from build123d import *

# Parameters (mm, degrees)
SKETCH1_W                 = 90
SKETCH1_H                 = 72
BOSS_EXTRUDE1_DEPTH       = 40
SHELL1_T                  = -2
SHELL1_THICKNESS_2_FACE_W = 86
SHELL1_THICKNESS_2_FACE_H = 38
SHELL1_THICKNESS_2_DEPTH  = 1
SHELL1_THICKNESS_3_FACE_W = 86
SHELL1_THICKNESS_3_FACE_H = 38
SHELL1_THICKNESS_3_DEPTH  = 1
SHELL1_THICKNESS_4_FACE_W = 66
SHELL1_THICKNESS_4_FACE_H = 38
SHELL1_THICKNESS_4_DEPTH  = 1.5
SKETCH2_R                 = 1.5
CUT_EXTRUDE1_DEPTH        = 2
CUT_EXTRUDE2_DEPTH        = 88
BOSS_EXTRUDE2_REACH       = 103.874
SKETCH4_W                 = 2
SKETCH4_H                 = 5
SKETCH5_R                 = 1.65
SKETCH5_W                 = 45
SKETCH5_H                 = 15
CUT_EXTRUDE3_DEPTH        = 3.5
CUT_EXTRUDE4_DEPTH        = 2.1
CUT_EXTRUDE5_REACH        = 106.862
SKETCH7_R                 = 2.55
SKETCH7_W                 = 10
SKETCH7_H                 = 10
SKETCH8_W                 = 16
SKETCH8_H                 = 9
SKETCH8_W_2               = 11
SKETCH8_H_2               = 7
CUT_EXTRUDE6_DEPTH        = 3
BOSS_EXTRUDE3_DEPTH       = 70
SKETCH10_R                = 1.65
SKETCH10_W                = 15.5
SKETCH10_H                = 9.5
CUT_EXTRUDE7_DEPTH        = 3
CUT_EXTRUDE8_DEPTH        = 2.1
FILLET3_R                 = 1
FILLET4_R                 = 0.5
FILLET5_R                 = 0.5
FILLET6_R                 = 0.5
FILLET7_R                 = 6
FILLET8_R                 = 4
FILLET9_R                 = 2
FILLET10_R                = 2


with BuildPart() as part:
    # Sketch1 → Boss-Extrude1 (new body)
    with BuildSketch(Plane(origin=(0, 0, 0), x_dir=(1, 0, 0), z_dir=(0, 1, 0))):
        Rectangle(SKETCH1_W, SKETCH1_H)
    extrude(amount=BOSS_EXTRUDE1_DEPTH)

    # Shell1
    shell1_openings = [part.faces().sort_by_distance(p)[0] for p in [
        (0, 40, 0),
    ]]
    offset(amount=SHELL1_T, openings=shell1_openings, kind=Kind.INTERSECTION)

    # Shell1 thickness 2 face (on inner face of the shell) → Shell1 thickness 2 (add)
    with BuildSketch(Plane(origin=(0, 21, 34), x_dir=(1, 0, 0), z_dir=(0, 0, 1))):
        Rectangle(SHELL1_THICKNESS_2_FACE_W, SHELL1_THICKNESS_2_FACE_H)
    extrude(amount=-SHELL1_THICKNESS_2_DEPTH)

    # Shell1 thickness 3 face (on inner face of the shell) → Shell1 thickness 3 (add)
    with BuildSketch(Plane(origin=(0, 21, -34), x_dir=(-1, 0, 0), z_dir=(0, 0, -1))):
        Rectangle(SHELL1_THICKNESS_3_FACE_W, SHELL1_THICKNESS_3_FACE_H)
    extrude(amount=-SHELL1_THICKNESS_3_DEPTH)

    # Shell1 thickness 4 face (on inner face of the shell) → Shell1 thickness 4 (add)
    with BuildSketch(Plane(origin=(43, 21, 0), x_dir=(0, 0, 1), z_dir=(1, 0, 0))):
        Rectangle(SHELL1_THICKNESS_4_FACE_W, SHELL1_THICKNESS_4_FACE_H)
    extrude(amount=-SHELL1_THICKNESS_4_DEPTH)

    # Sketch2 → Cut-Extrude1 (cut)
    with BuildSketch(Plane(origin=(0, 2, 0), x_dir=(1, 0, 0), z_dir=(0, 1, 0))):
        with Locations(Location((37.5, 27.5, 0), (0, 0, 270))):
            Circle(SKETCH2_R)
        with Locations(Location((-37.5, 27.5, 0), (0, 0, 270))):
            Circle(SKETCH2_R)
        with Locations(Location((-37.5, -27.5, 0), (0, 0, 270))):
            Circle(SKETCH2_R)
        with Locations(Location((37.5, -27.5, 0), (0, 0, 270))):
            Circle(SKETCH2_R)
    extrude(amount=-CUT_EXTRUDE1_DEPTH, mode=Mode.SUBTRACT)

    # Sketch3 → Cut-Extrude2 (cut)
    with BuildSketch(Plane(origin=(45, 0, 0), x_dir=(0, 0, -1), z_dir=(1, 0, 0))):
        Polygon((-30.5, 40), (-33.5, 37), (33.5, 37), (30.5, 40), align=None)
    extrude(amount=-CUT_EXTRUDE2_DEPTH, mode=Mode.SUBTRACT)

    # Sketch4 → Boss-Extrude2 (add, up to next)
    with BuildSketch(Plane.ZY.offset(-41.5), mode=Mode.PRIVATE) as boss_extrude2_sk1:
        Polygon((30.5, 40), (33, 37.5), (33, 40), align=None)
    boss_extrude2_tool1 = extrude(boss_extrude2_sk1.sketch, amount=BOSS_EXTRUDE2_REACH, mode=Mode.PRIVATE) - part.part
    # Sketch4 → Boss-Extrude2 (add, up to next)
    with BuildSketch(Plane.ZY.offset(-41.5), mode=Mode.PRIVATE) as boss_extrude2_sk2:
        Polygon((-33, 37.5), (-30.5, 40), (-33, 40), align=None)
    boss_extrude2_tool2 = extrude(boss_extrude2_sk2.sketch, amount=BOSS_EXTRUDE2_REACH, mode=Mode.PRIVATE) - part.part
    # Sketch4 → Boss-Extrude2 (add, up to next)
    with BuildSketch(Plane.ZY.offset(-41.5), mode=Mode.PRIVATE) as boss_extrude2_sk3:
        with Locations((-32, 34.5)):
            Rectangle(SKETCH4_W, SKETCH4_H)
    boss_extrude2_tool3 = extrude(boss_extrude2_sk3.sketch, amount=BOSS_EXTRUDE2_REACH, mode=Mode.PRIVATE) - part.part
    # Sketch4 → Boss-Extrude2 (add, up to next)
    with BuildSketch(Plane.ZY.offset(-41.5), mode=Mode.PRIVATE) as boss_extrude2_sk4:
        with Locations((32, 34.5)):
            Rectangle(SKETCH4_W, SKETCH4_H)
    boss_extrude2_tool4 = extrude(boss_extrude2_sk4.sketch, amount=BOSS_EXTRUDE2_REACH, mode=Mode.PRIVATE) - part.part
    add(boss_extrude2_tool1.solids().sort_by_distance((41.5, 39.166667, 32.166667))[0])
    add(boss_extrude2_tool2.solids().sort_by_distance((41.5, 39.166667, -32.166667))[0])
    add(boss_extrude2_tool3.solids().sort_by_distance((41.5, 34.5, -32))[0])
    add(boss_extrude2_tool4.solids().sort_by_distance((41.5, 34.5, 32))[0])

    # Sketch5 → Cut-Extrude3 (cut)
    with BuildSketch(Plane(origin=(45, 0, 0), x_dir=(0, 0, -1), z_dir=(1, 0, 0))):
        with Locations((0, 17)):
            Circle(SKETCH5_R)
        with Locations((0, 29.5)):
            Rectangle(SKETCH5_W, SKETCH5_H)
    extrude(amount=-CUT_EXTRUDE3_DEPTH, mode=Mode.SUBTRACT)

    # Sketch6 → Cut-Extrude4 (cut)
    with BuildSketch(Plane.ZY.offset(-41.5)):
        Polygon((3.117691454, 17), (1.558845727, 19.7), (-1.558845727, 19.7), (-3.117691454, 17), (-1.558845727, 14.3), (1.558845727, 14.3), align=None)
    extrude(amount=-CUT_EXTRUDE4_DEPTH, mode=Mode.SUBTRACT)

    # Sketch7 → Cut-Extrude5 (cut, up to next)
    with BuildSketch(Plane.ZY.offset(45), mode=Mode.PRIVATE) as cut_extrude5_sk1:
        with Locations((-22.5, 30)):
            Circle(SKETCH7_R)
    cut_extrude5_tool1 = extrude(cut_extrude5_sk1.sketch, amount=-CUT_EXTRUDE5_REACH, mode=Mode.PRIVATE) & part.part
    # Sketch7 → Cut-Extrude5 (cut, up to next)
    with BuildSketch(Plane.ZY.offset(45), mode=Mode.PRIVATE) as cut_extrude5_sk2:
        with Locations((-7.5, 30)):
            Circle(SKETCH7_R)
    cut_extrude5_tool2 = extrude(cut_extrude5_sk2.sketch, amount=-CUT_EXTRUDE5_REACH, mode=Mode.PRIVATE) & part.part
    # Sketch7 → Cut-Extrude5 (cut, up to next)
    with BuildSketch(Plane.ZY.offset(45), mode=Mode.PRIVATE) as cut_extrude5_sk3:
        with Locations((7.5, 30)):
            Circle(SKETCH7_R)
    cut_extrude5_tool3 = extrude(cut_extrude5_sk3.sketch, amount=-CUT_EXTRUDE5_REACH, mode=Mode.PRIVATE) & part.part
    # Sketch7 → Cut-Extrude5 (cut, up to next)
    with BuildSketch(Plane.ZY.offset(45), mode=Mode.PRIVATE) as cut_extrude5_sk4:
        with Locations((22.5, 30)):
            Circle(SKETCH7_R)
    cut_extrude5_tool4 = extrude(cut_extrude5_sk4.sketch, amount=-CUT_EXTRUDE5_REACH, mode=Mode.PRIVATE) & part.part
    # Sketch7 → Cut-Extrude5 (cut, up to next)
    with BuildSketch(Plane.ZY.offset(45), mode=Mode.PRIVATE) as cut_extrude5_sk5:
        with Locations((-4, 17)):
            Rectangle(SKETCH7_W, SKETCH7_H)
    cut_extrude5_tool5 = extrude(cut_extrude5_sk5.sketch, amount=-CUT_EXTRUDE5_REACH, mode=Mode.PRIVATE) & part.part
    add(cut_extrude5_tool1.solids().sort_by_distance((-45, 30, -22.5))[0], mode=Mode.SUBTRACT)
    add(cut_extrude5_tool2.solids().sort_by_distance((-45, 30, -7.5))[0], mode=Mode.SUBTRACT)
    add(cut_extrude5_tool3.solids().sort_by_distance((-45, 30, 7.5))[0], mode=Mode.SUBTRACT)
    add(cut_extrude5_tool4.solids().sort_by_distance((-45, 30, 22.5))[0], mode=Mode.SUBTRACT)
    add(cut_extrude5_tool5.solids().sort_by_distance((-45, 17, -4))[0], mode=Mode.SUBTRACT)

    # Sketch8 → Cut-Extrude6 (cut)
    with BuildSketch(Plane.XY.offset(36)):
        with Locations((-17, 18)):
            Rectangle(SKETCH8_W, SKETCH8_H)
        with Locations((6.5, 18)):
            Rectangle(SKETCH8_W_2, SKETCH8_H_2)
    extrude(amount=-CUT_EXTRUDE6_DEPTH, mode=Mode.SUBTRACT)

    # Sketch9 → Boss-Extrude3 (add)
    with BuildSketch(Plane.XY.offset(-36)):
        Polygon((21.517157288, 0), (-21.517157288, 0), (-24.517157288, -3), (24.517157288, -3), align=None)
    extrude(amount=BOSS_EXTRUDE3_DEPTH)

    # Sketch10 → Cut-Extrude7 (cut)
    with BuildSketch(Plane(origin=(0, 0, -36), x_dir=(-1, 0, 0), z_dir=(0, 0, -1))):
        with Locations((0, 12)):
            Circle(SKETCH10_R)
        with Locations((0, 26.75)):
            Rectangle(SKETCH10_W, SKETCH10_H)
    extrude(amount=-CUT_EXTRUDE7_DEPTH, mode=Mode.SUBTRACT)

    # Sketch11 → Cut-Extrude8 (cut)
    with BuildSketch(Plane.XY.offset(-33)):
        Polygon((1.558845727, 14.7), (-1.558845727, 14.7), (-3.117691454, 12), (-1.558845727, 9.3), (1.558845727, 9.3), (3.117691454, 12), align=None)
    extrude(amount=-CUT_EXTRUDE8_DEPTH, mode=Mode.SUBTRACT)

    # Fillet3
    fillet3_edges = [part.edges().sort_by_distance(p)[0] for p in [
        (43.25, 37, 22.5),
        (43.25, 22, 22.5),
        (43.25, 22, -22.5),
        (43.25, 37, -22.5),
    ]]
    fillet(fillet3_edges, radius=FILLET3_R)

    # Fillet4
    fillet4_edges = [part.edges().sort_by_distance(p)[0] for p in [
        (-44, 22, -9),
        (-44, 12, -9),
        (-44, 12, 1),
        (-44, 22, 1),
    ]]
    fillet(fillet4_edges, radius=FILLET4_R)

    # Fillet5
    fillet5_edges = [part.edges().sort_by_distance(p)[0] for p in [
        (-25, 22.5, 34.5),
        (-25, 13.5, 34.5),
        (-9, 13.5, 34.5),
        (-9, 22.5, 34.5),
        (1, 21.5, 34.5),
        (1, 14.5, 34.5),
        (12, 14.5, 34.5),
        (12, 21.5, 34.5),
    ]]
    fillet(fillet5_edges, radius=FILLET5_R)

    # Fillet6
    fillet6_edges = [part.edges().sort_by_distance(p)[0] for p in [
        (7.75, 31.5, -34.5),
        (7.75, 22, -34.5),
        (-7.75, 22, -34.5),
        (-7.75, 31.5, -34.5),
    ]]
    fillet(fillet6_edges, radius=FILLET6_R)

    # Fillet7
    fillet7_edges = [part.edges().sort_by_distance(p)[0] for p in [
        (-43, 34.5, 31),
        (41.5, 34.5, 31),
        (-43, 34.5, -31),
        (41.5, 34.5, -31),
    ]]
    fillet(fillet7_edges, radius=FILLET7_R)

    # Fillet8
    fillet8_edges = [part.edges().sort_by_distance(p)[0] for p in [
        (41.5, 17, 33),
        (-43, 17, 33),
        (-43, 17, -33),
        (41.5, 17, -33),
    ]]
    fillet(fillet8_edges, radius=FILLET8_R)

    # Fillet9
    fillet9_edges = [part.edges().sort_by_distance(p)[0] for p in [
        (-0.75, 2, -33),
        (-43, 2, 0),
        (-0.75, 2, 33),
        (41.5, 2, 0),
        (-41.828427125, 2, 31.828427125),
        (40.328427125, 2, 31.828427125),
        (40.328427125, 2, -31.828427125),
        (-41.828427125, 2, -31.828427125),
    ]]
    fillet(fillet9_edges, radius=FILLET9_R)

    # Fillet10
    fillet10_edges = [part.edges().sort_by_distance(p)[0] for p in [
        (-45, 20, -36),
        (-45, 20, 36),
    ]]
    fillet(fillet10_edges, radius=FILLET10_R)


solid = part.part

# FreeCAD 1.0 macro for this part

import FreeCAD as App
import Part
import Sketcher

V = App.Vector
Q = App.Units.Quantity


def edges_at(feature, points):
    """Names of the edges that pass closest to the given points."""
    edges = feature.Shape.Edges
    near = lambda p: min(range(len(edges)), key=lambda i: edges[i].distToShape(Part.Vertex(*p))[0])
    return sorted({f"Edge{near(p) + 1}" for p in points})


def faces_at(feature, points):
    """Names of the faces that lie closest to the given points."""
    faces = feature.Shape.Faces
    near = lambda p: min(range(len(faces)), key=lambda i: faces[i].distToShape(Part.Vertex(*p))[0])
    return sorted({f"Face{near(p) + 1}" for p in points})


def add_polygon(sketch, points):
    """Adds a closed chain of lines whose ends are joined by coincident constraints."""
    first, n = sketch.GeometryCount, len(points)
    for a, b in zip(points, points[1:] + points[:1]):
        sketch.addGeometry(Part.LineSegment(App.Vector(*a, 0), App.Vector(*b, 0)), False)
    for i in range(n):
        sketch.addConstraint(Sketcher.Constraint("Coincident", first + i, 2, first + (i + 1) % n, 1))

doc = App.newDocument("Part")
body = doc.addObject("PartDesign::Body", "Body")

# Sketch on XZ plane
sketch1 = body.newObject("Sketcher::SketchObject", "Sketch")
sketch1.AttachmentSupport = (doc.getObject("XZ_Plane"), [""])
sketch1.MapMode = "FlatFace"
add_polygon(sketch1, [(-45, -36), (-45, 36), (45, 36), (45, -36)])  # lines 0-3
sketch1.addConstraint([
    Sketcher.Constraint("Vertical", 0),
    Sketcher.Constraint("Horizontal", 1),
    Sketcher.Constraint("Vertical", 2),
    Sketcher.Constraint("Horizontal", 3),
    Sketcher.Constraint("Symmetric", 0, 2, 2, 2, -1, 1),
    Sketcher.Constraint("DistanceX", 1, 1, 1, 2, 90.0),
    Sketcher.Constraint("DistanceY", 0, 1, 0, 2, 72.0),
])
pad1 = body.newObject("PartDesign::Pad", "Pad")
pad1.Profile = sketch1
pad1.Length = 40
pad1.Reversed = True
doc.recompute()

thickness = body.newObject("PartDesign::Thickness", "Thickness")
thickness.Base = (pad1, faces_at(pad1, [(0, 40, 0)]))
thickness.Value = 2
thickness.Reversed = True
thickness.Join = "Intersection"

# Sketch on XY plane
sketch2 = body.newObject("Sketcher::SketchObject", "Sketch001")
sketch2.AttachmentSupport = (doc.getObject("XY_Plane"), [""])
sketch2.MapMode = "FlatFace"
sketch2.AttachmentOffset = App.Placement(V(0, 0, 34), App.Rotation())
add_polygon(sketch2, [(-43, 40), (-43, 2), (43, 2), (43, 40)])  # lines 0-3
sketch2.addConstraint([
    Sketcher.Constraint("Vertical", 0),
    Sketcher.Constraint("Horizontal", 1),
    Sketcher.Constraint("Vertical", 2),
    Sketcher.Constraint("Horizontal", 3),
    Sketcher.Constraint("DistanceX", 1, 1, 1, 2, 86.0),
    Sketcher.Constraint("DistanceY", 0, 2, 0, 1, 38.0),
    Sketcher.Constraint("DistanceX", 0, 2, -1, 1, 43.0),
    Sketcher.Constraint("DistanceY", -1, 1, 0, 2, 2.0),
])
pad2 = body.newObject("PartDesign::Pad", "Pad001")
pad2.Profile = sketch2
pad2.Length = 1
pad2.Reversed = True

# Sketch on XY plane
sketch3 = body.newObject("Sketcher::SketchObject", "Sketch002")
sketch3.AttachmentSupport = (doc.getObject("XY_Plane"), [""])
sketch3.MapMode = "FlatFace"
sketch3.AttachmentOffset = App.Placement(V(0, 0, -34), App.Rotation())
add_polygon(sketch3, [(43, 40), (43, 2), (-43, 2), (-43, 40)])  # lines 0-3
sketch3.addConstraint([
    Sketcher.Constraint("Vertical", 0),
    Sketcher.Constraint("Horizontal", 1),
    Sketcher.Constraint("Vertical", 2),
    Sketcher.Constraint("Horizontal", 3),
    Sketcher.Constraint("DistanceX", 1, 2, 1, 1, 86.0),
    Sketcher.Constraint("DistanceY", 0, 2, 0, 1, 38.0),
    Sketcher.Constraint("DistanceX", -1, 1, 0, 2, 43.0),
    Sketcher.Constraint("DistanceY", -1, 1, 0, 2, 2.0),
])
pad3 = body.newObject("PartDesign::Pad", "Pad002")
pad3.Profile = sketch3
pad3.Length = 1

# Sketch on YZ plane
sketch4 = body.newObject("Sketcher::SketchObject", "Sketch003")
sketch4.AttachmentSupport = (doc.getObject("YZ_Plane"), [""])
sketch4.MapMode = "FlatFace"
sketch4.AttachmentOffset = App.Placement(V(0, 0, 43), App.Rotation())
add_polygon(sketch4, [(2, -33), (40, -33), (40, 33), (2, 33)])  # lines 0-3
sketch4.addConstraint([
    Sketcher.Constraint("Horizontal", 0),
    Sketcher.Constraint("Vertical", 1),
    Sketcher.Constraint("Horizontal", 2),
    Sketcher.Constraint("Vertical", 3),
    Sketcher.Constraint("DistanceX", 0, 1, 0, 2, 38.0),
    Sketcher.Constraint("DistanceY", 1, 1, 1, 2, 66.0),
    Sketcher.Constraint("DistanceX", -1, 1, 0, 2, 40.0),
    Sketcher.Constraint("DistanceY", 0, 2, -1, 1, 33.0),
])
pad4 = body.newObject("PartDesign::Pad", "Pad003")
pad4.Profile = sketch4
pad4.Length = 1.5
pad4.Reversed = True

# Sketch on XZ plane
sketch5 = body.newObject("Sketcher::SketchObject", "Sketch004")
sketch5.AttachmentSupport = (doc.getObject("XZ_Plane"), [""])
sketch5.MapMode = "FlatFace"
sketch5.AttachmentOffset = App.Placement(V(0, 0, -2), App.Rotation())
sketch5.addGeometry([
    Part.Circle(V(37.5, -27.5, 0), V(0, 0, 1), 1.5),
    Part.Circle(V(-37.5, -27.5, 0), V(0, 0, 1), 1.5),
    Part.Circle(V(-37.5, 27.5, 0), V(0, 0, 1), 1.5),
    Part.Circle(V(37.5, 27.5, 0), V(0, 0, 1), 1.5),
], False)
sketch5.addConstraint([
    Sketcher.Constraint("Equal", 0, 1),
    Sketcher.Constraint("Equal", 1, 2),
    Sketcher.Constraint("Equal", 2, 3),
    Sketcher.Constraint("Symmetric", 0, 3, 2, 3, -1, 1),
    Sketcher.Constraint("Symmetric", 1, 3, 3, 3, -1, 1),
    Sketcher.Constraint("Symmetric", 0, 3, 1, 3, -2),
    Sketcher.Constraint("Diameter", 0, 3.0),
    Sketcher.Constraint("DistanceX", 1, 3, 0, 3, 75.0),
    Sketcher.Constraint("DistanceY", 1, 3, 2, 3, 55.0),
])
pocket1 = body.newObject("PartDesign::Pocket", "Pocket")
pocket1.Profile = sketch5
pocket1.Length = 2
pocket1.Reversed = True

# Sketch on YZ plane
sketch6 = body.newObject("Sketcher::SketchObject", "Sketch005")
sketch6.AttachmentSupport = (doc.getObject("YZ_Plane"), [""])
sketch6.MapMode = "FlatFace"
sketch6.AttachmentOffset = App.Placement(V(0, 0, 45), App.Rotation())
add_polygon(sketch6, [(40, 30.5), (37, 33.5), (37, -33.5), (40, -30.5)])  # lines 0-3
sketch6.addConstraint([
    Sketcher.Constraint("Vertical", 1),
    Sketcher.Constraint("Vertical", 3),
    Sketcher.Constraint("Perpendicular", 0, 2),
    Sketcher.Constraint("Equal", 0, 2),
    Sketcher.Constraint("DistanceY", 1, 2, 1, 1, 67.0),
    Sketcher.Constraint("DistanceY", 3, 1, 3, 2, 61.0),
    Sketcher.Constraint("DistanceX", -1, 1, 0, 2, 37.0),
    Sketcher.Constraint("DistanceY", -1, 1, 0, 2, 33.5),
])
pocket2 = body.newObject("PartDesign::Pocket", "Pocket001")
pocket2.Profile = sketch6
pocket2.Length = 88

# Sketch on YZ plane
sketch7 = body.newObject("Sketcher::SketchObject", "Sketch006")
sketch7.AttachmentSupport = (doc.getObject("YZ_Plane"), [""])
sketch7.MapMode = "FlatFace"
sketch7.AttachmentOffset = App.Placement(V(0, 0, 41.5), App.Rotation())
add_polygon(sketch7, [(40, 30.5), (37.5, 33), (40, 33)])  # lines 0-2
sketch7.addConstraint([
    Sketcher.Constraint("Horizontal", 1),
    Sketcher.Constraint("Vertical", 2),
    Sketcher.Constraint("Equal", 1, 2),
    Sketcher.Constraint("DistanceX", 1, 1, 1, 2, 2.5),
    Sketcher.Constraint("DistanceY", -1, 1, 0, 2, 33.0),
    Sketcher.Constraint("DistanceX", -1, 1, 1, 2, 40.0),
])
pad5 = body.newObject("PartDesign::Pad", "Pad004")
pad5.Profile = sketch7
pad5.Type = "UpToFirst"
pad5.Reversed = True

# Sketch on YZ plane
sketch8 = body.newObject("Sketcher::SketchObject", "Sketch007")
sketch8.AttachmentSupport = (doc.getObject("YZ_Plane"), [""])
sketch8.MapMode = "FlatFace"
sketch8.AttachmentOffset = App.Placement(V(0, 0, 41.5), App.Rotation())
add_polygon(sketch8, [(37.5, -33), (40, -30.5), (40, -33)])  # lines 0-2
sketch8.addConstraint([
    Sketcher.Constraint("Vertical", 1),
    Sketcher.Constraint("Horizontal", 2),
    Sketcher.Constraint("Equal", 2, 1),
    Sketcher.Constraint("DistanceX", 2, 2, 2, 1, 2.5),
    Sketcher.Constraint("DistanceX", -1, 1, 0, 2, 40.0),
    Sketcher.Constraint("DistanceY", 1, 2, -1, 1, 33.0),
])
pad6 = body.newObject("PartDesign::Pad", "Pad005")
pad6.Profile = sketch8
pad6.Type = "UpToFirst"
pad6.Reversed = True

# Sketch on YZ plane
sketch9 = body.newObject("Sketcher::SketchObject", "Sketch008")
sketch9.AttachmentSupport = (doc.getObject("YZ_Plane"), [""])
sketch9.MapMode = "FlatFace"
sketch9.AttachmentOffset = App.Placement(V(0, 0, 41.5), App.Rotation())
add_polygon(sketch9, [(37, -33), (32, -33), (32, -31), (37, -31)])  # lines 0-3
sketch9.addConstraint([
    Sketcher.Constraint("Horizontal", 0),
    Sketcher.Constraint("Vertical", 1),
    Sketcher.Constraint("Horizontal", 2),
    Sketcher.Constraint("Vertical", 3),
    Sketcher.Constraint("DistanceX", 0, 2, 0, 1, 5.0),
    Sketcher.Constraint("DistanceY", 1, 1, 1, 2, 2.0),
    Sketcher.Constraint("DistanceX", -1, 1, 0, 2, 32.0),
    Sketcher.Constraint("DistanceY", 0, 2, -1, 1, 33.0),
])
pad7 = body.newObject("PartDesign::Pad", "Pad006")
pad7.Profile = sketch9
pad7.Type = "UpToFirst"
pad7.Reversed = True

# Sketch on YZ plane
sketch10 = body.newObject("Sketcher::SketchObject", "Sketch009")
sketch10.AttachmentSupport = (doc.getObject("YZ_Plane"), [""])
sketch10.MapMode = "FlatFace"
sketch10.AttachmentOffset = App.Placement(V(0, 0, 41.5), App.Rotation())
add_polygon(sketch10, [(37, 31), (32, 31), (32, 33), (37, 33)])  # lines 0-3
sketch10.addConstraint([
    Sketcher.Constraint("Horizontal", 0),
    Sketcher.Constraint("Vertical", 1),
    Sketcher.Constraint("Horizontal", 2),
    Sketcher.Constraint("Vertical", 3),
    Sketcher.Constraint("DistanceX", 0, 2, 0, 1, 5.0),
    Sketcher.Constraint("DistanceY", 1, 1, 1, 2, 2.0),
    Sketcher.Constraint("DistanceX", -1, 1, 0, 2, 32.0),
    Sketcher.Constraint("DistanceY", -1, 1, 0, 2, 31.0),
])
pad8 = body.newObject("PartDesign::Pad", "Pad007")
pad8.Profile = sketch10
pad8.Type = "UpToFirst"
pad8.Reversed = True

# Sketch on YZ plane
sketch11 = body.newObject("Sketcher::SketchObject", "Sketch010")
sketch11.AttachmentSupport = (doc.getObject("YZ_Plane"), [""])
sketch11.MapMode = "FlatFace"
sketch11.AttachmentOffset = App.Placement(V(0, 0, 45), App.Rotation())
sketch11.addGeometry(Part.Circle(V(17, 0, 0), V(0, 0, 1), 1.65), False)  # 0
add_polygon(sketch11, [(37, 22.5), (22, 22.5), (22, -22.5), (37, -22.5)])  # lines 1-4
sketch11.addConstraint([
    Sketcher.Constraint("Horizontal", 1),
    Sketcher.Constraint("Vertical", 2),
    Sketcher.Constraint("Horizontal", 3),
    Sketcher.Constraint("Vertical", 4),
    Sketcher.Constraint("PointOnObject", 0, 3, -1),
    Sketcher.Constraint("Diameter", 0, 3.3),
    Sketcher.Constraint("DistanceX", 1, 2, 1, 1, 15.0),
    Sketcher.Constraint("DistanceY", 2, 2, 2, 1, 45.0),
    Sketcher.Constraint("DistanceX", -1, 1, 0, 3, 17.0),
    Sketcher.Constraint("DistanceX", -1, 1, 1, 2, 22.0),
    Sketcher.Constraint("DistanceY", -1, 1, 1, 2, 22.5),
])
pocket3 = body.newObject("PartDesign::Pocket", "Pocket002")
pocket3.Profile = sketch11
pocket3.Length = 3.5

# Sketch on YZ plane
sketch12 = body.newObject("Sketcher::SketchObject", "Sketch011")
sketch12.AttachmentSupport = (doc.getObject("YZ_Plane"), [""])
sketch12.MapMode = "FlatFace"
sketch12.AttachmentOffset = App.Placement(V(0, 0, 41.5), App.Rotation())
add_polygon(sketch12, [(17, 3.117691), (19.7, 1.558846), (19.7, -1.558846), (17, -3.117691), (14.3, -1.558846), (14.3, 1.558846)])  # lines 0-5
sketch12.addConstraint([
    Sketcher.Constraint("Vertical", 1),
    Sketcher.Constraint("Vertical", 4),
    Sketcher.Constraint("Symmetric", 2, 2, 5, 2, -1),
    Sketcher.Constraint("Parallel", 0, 3),
    Sketcher.Constraint("Parallel", 2, 5),
    Sketcher.Constraint("Horizontal", 1, 2, 3, 2),
    Sketcher.Constraint("Horizontal", 0, 2, 4, 2),
    Sketcher.Constraint("Angle", 0, Q("-30 deg")),
    Sketcher.Constraint("DistanceX", -1, 1, 2, 2, 17.0),
    Sketcher.Constraint("DistanceX", -1, 1, 0, 2, 19.7),
    Sketcher.Constraint("DistanceY", 1, 2, 1, 1, 3.117691),
])
pocket4 = body.newObject("PartDesign::Pocket", "Pocket003")
pocket4.Profile = sketch12
pocket4.Length = 2.1
pocket4.Reversed = True

# Sketch on YZ plane
sketch13 = body.newObject("Sketcher::SketchObject", "Sketch012")
sketch13.AttachmentSupport = (doc.getObject("YZ_Plane"), [""])
sketch13.MapMode = "FlatFace"
sketch13.AttachmentOffset = App.Placement(V(0, 0, -45), App.Rotation())
sketch13.addGeometry(Part.Circle(V(30, -22.5, 0), V(0, 0, 1), 2.55), False)
sketch13.addConstraint([
    Sketcher.Constraint("Diameter", 0, 5.1),
    Sketcher.Constraint("DistanceX", -1, 1, 0, 3, 30.0),
    Sketcher.Constraint("DistanceY", 0, 3, -1, 1, 22.5),
])
pocket5 = body.newObject("PartDesign::Pocket", "Pocket004")
pocket5.Profile = sketch13
pocket5.Type = "UpToFirst"
pocket5.Reversed = True

# Sketch on YZ plane
sketch14 = body.newObject("Sketcher::SketchObject", "Sketch013")
sketch14.AttachmentSupport = (doc.getObject("YZ_Plane"), [""])
sketch14.MapMode = "FlatFace"
sketch14.AttachmentOffset = App.Placement(V(0, 0, -45), App.Rotation())
sketch14.addGeometry(Part.Circle(V(30, -7.5, 0), V(0, 0, 1), 2.55), False)
sketch14.addConstraint([
    Sketcher.Constraint("Diameter", 0, 5.1),
    Sketcher.Constraint("DistanceX", -1, 1, 0, 3, 30.0),
    Sketcher.Constraint("DistanceY", 0, 3, -1, 1, 7.5),
])
pocket6 = body.newObject("PartDesign::Pocket", "Pocket005")
pocket6.Profile = sketch14
pocket6.Type = "UpToFirst"
pocket6.Reversed = True

# Sketch on YZ plane
sketch15 = body.newObject("Sketcher::SketchObject", "Sketch014")
sketch15.AttachmentSupport = (doc.getObject("YZ_Plane"), [""])
sketch15.MapMode = "FlatFace"
sketch15.AttachmentOffset = App.Placement(V(0, 0, -45), App.Rotation())
sketch15.addGeometry(Part.Circle(V(30, 7.5, 0), V(0, 0, 1), 2.55), False)
sketch15.addConstraint([
    Sketcher.Constraint("Diameter", 0, 5.1),
    Sketcher.Constraint("DistanceX", -1, 1, 0, 3, 30.0),
    Sketcher.Constraint("DistanceY", -1, 1, 0, 3, 7.5),
])
pocket7 = body.newObject("PartDesign::Pocket", "Pocket006")
pocket7.Profile = sketch15
pocket7.Type = "UpToFirst"
pocket7.Reversed = True

# Sketch on YZ plane
sketch16 = body.newObject("Sketcher::SketchObject", "Sketch015")
sketch16.AttachmentSupport = (doc.getObject("YZ_Plane"), [""])
sketch16.MapMode = "FlatFace"
sketch16.AttachmentOffset = App.Placement(V(0, 0, -45), App.Rotation())
sketch16.addGeometry(Part.Circle(V(30, 22.5, 0), V(0, 0, 1), 2.55), False)
sketch16.addConstraint([
    Sketcher.Constraint("Diameter", 0, 5.1),
    Sketcher.Constraint("DistanceX", -1, 1, 0, 3, 30.0),
    Sketcher.Constraint("DistanceY", -1, 1, 0, 3, 22.5),
])
pocket8 = body.newObject("PartDesign::Pocket", "Pocket007")
pocket8.Profile = sketch16
pocket8.Type = "UpToFirst"
pocket8.Reversed = True

# Sketch on YZ plane
sketch17 = body.newObject("Sketcher::SketchObject", "Sketch016")
sketch17.AttachmentSupport = (doc.getObject("YZ_Plane"), [""])
sketch17.MapMode = "FlatFace"
sketch17.AttachmentOffset = App.Placement(V(0, 0, -45), App.Rotation())
add_polygon(sketch17, [(22, -9), (12, -9), (12, 1), (22, 1)])  # lines 0-3
sketch17.addConstraint([
    Sketcher.Constraint("Horizontal", 0),
    Sketcher.Constraint("Vertical", 1),
    Sketcher.Constraint("Horizontal", 2),
    Sketcher.Constraint("Vertical", 3),
    Sketcher.Constraint("Equal", 2, 1),
    Sketcher.Constraint("DistanceX", 0, 2, 0, 1, 10.0),
    Sketcher.Constraint("DistanceX", -1, 1, 0, 2, 12.0),
    Sketcher.Constraint("DistanceY", 0, 2, -1, 1, 9.0),
])
pocket9 = body.newObject("PartDesign::Pocket", "Pocket008")
pocket9.Profile = sketch17
pocket9.Type = "UpToFirst"
pocket9.Reversed = True

# Sketch on XY plane
sketch18 = body.newObject("Sketcher::SketchObject", "Sketch017")
sketch18.AttachmentSupport = (doc.getObject("XY_Plane"), [""])
sketch18.MapMode = "FlatFace"
sketch18.AttachmentOffset = App.Placement(V(0, 0, 36), App.Rotation())
add_polygon(sketch18, [(-25, 22.5), (-25, 13.5), (-9, 13.5), (-9, 22.5)])  # lines 0-3
add_polygon(sketch18, [(1, 21.5), (1, 14.5), (12, 14.5), (12, 21.5)])  # lines 4-7
sketch18.addConstraint([
    Sketcher.Constraint("Vertical", 0),
    Sketcher.Constraint("Horizontal", 1),
    Sketcher.Constraint("Vertical", 2),
    Sketcher.Constraint("Horizontal", 3),
    Sketcher.Constraint("Vertical", 4),
    Sketcher.Constraint("Horizontal", 5),
    Sketcher.Constraint("Vertical", 6),
    Sketcher.Constraint("Horizontal", 7),
    Sketcher.Constraint("DistanceX", 1, 1, 1, 2, 16.0),
    Sketcher.Constraint("DistanceX", 5, 1, 5, 2, 11.0),
    Sketcher.Constraint("DistanceY", 0, 2, 0, 1, 9.0),
    Sketcher.Constraint("DistanceY", 4, 2, 4, 1, 7.0),
    Sketcher.Constraint("DistanceX", 0, 2, -1, 1, 25.0),
    Sketcher.Constraint("DistanceX", -1, 1, 4, 2, 1.0),
    Sketcher.Constraint("DistanceY", 1, 2, 4, 2, 1.0),
    Sketcher.Constraint("DistanceY", -1, 1, 0, 2, 13.5),
])
pocket10 = body.newObject("PartDesign::Pocket", "Pocket009")
pocket10.Profile = sketch18
pocket10.Length = 3

# Sketch on XY plane
sketch19 = body.newObject("Sketcher::SketchObject", "Sketch018")
sketch19.AttachmentSupport = (doc.getObject("XY_Plane"), [""])
sketch19.MapMode = "FlatFace"
sketch19.AttachmentOffset = App.Placement(V(0, 0, -36), App.Rotation())
add_polygon(sketch19, [(21.517157, 0), (-21.517157, 0), (-24.517157, -3), (24.517157, -3)])  # lines 0-3
sketch19.addConstraint([
    Sketcher.Constraint("Horizontal", 0),
    Sketcher.Constraint("Horizontal", 2),
    Sketcher.Constraint("Symmetric", 0, 2, 3, 2, -1, 1),
    Sketcher.Constraint("Perpendicular", 1, 3),
    Sketcher.Constraint("Equal", 1, 3),
    Sketcher.Constraint("DistanceY", 1, 2, -1, 1, 3.0),
    Sketcher.Constraint("DistanceX", 0, 2, 0, 1, 43.034315),
])
pad9 = body.newObject("PartDesign::Pad", "Pad008")
pad9.Profile = sketch19
pad9.Length = 70

# Sketch on XY plane
sketch20 = body.newObject("Sketcher::SketchObject", "Sketch019")
sketch20.AttachmentSupport = (doc.getObject("XY_Plane"), [""])
sketch20.MapMode = "FlatFace"
sketch20.AttachmentOffset = App.Placement(V(0, 0, -36), App.Rotation())
sketch20.addGeometry(Part.Circle(V(0, 12, 0), V(0, 0, 1), 1.65), False)  # 0
add_polygon(sketch20, [(7.75, 31.5), (7.75, 22), (-7.75, 22), (-7.75, 31.5)])  # lines 1-4
sketch20.addConstraint([
    Sketcher.Constraint("Vertical", 1),
    Sketcher.Constraint("Horizontal", 2),
    Sketcher.Constraint("Vertical", 3),
    Sketcher.Constraint("Horizontal", 4),
    Sketcher.Constraint("PointOnObject", 0, 3, -2),
    Sketcher.Constraint("Diameter", 0, 3.3),
    Sketcher.Constraint("DistanceX", 2, 2, 2, 1, 15.5),
    Sketcher.Constraint("DistanceY", 1, 2, 1, 1, 9.5),
    Sketcher.Constraint("DistanceY", -1, 1, 0, 3, 12.0),
    Sketcher.Constraint("DistanceY", -1, 1, 1, 2, 22.0),
    Sketcher.Constraint("DistanceX", -1, 1, 1, 2, 7.75),
])
pocket11 = body.newObject("PartDesign::Pocket", "Pocket010")
pocket11.Profile = sketch20
pocket11.Length = 3
pocket11.Reversed = True

# Sketch on XY plane
sketch21 = body.newObject("Sketcher::SketchObject", "Sketch020")
sketch21.AttachmentSupport = (doc.getObject("XY_Plane"), [""])
sketch21.MapMode = "FlatFace"
sketch21.AttachmentOffset = App.Placement(V(0, 0, -33), App.Rotation())
add_polygon(sketch21, [(1.558846, 14.7), (-1.558846, 14.7), (-3.117691, 12), (-1.558846, 9.3), (1.558846, 9.3), (3.117691, 12)])  # lines 0-5
sketch21.addConstraint([
    Sketcher.Constraint("Horizontal", 0),
    Sketcher.Constraint("Horizontal", 3),
    Sketcher.Constraint("Symmetric", 1, 2, 4, 2, -2),
    Sketcher.Constraint("Parallel", 1, 4),
    Sketcher.Constraint("Parallel", 2, 5),
    Sketcher.Constraint("Vertical", 0, 2, 2, 2),
    Sketcher.Constraint("Vertical", 3, 2, 5, 2),
    Sketcher.Constraint("Angle", 1, Q("-120 deg")),
    Sketcher.Constraint("DistanceY", -1, 1, 1, 2, 12.0),
    Sketcher.Constraint("DistanceY", -1, 1, 0, 2, 14.7),
    Sketcher.Constraint("DistanceX", 0, 2, 0, 1, 3.117691),
])
pocket12 = body.newObject("PartDesign::Pocket", "Pocket011")
pocket12.Profile = sketch21
pocket12.Length = 2.1
doc.recompute()

fillet = body.newObject("PartDesign::Fillet", "Fillet")
fillet.Base = (pocket12, edges_at(pocket12, [
    (43.25, 37, 22.5),
    (43.25, 22, 22.5),
    (43.25, 22, -22.5),
    (43.25, 37, -22.5),
]))
fillet.Radius = 1
doc.recompute()

fillet2 = body.newObject("PartDesign::Fillet", "Fillet001")
fillet2.Base = (fillet, edges_at(fillet, [
    (-44, 22, -9),
    (-44, 12, -9),
    (-44, 12, 1),
    (-44, 22, 1),
]))
fillet2.Radius = 0.5
doc.recompute()

fillet3 = body.newObject("PartDesign::Fillet", "Fillet002")
fillet3.Base = (fillet2, edges_at(fillet2, [
    (-25, 22.5, 34.5),
    (-25, 13.5, 34.5),
    (-9, 13.5, 34.5),
    (-9, 22.5, 34.5),
    (1, 21.5, 34.5),
    (1, 14.5, 34.5),
    (12, 14.5, 34.5),
    (12, 21.5, 34.5),
]))
fillet3.Radius = 0.5
doc.recompute()

fillet4 = body.newObject("PartDesign::Fillet", "Fillet003")
fillet4.Base = (fillet3, edges_at(fillet3, [
    (7.75, 31.5, -34.5),
    (7.75, 22, -34.5),
    (-7.75, 22, -34.5),
    (-7.75, 31.5, -34.5),
]))
fillet4.Radius = 0.5
doc.recompute()

fillet5 = body.newObject("PartDesign::Fillet", "Fillet004")
fillet5.Base = (fillet4, edges_at(fillet4, [
    (-43, 34.5, 31),
    (41.5, 34.5, 31),
    (-43, 34.5, -31),
    (41.5, 34.5, -31),
]))
fillet5.Radius = 6
doc.recompute()

fillet6 = body.newObject("PartDesign::Fillet", "Fillet005")
fillet6.Base = (fillet5, edges_at(fillet5, [
    (41.5, 17, 33),
    (-43, 17, 33),
    (-43, 17, -33),
    (41.5, 17, -33),
]))
fillet6.Radius = 4
doc.recompute()

fillet7 = body.newObject("PartDesign::Fillet", "Fillet006")
fillet7.Base = (fillet6, edges_at(fillet6, [
    (-0.75, 2, -33),
    (-43, 2, 0),
    (-0.75, 2, 33),
    (41.5, 2, 0),
    (-41.828, 2, 31.828),
    (40.328, 2, 31.828),
    (40.328, 2, -31.828),
    (-41.828, 2, -31.828),
]))
fillet7.Radius = 2
doc.recompute()

fillet8 = body.newObject("PartDesign::Fillet", "Fillet007")
fillet8.Base = (fillet7, edges_at(fillet7, [(-45, 20, -36), (-45, 20, 36)]))
fillet8.Radius = 2

doc.recompute()
